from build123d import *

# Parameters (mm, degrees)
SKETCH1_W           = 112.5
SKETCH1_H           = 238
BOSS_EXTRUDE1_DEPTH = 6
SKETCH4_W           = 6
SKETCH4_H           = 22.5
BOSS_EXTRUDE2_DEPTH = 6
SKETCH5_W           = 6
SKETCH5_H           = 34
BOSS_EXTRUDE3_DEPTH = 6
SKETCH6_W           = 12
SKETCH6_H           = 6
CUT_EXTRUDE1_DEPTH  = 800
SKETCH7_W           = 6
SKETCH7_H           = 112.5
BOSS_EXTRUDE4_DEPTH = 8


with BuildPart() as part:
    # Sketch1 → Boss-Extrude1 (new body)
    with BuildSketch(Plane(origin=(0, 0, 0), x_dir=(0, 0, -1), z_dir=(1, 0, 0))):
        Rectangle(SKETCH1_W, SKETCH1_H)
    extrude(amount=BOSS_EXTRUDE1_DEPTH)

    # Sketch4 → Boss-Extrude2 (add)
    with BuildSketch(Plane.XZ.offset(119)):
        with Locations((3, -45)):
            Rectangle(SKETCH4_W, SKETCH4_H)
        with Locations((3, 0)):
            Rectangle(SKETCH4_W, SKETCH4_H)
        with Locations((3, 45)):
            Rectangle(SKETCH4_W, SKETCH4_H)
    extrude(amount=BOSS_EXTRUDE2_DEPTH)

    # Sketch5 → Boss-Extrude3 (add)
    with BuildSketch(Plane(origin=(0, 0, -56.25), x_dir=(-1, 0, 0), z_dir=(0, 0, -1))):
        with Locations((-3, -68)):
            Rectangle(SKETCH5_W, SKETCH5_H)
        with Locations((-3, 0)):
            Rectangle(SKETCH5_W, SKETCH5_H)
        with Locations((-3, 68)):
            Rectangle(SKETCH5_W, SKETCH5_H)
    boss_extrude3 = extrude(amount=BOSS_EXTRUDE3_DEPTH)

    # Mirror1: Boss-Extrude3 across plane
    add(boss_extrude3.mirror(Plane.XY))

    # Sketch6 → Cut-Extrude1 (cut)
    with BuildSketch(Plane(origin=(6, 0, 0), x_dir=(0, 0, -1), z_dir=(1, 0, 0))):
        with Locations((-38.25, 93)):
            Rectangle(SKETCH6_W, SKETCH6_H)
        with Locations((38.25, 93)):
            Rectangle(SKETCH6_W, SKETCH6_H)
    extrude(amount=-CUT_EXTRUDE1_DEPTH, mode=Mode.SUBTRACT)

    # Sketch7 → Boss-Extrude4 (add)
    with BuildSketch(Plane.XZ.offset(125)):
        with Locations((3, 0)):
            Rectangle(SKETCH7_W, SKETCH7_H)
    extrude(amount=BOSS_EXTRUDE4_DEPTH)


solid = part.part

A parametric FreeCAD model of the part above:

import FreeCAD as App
import Part
import Sketcher
Q = App.Units.Quantity


def add_polygon(sketch, points):
    """Adds a closed chain of lines whose ends are joined by coincident constraints."""
    first, n = sketch.GeometryCount, len(points)
    for a, b in zip(points, points[1:] + points[:1]):
        sketch.addGeometry(Part.LineSegment(App.Vector(*a, 0), App.Vector(*b, 0)), False)
    for i in range(n):
        sketch.addConstraint(Sketcher.Constraint("Coincident", first + i, 2, first + (i + 1) % n, 1))

doc = App.newDocument("Part")
body = doc.addObject("PartDesign::Body", "Body")

# Sketch on YZ plane
sketch1 = body.newObject("Sketcher::SketchObject", "Sketch")
sketch1.AttachmentSupport = (doc.getObject("YZ_Plane"), [""])
sketch1.MapMode = "FlatFace"
add_polygon(sketch1, [(119, 56), (-119, 56), (-119, -56), (119, -56)])  # lines 0-3
sketch1.addConstraint([
    Sketcher.Constraint("Horizontal", 0),
    Sketcher.Constraint("Vertical", 1),
    Sketcher.Constraint("Horizontal", 2),
    Sketcher.Constraint("Vertical", 3),
    Sketcher.Constraint("Symmetric", 0, 2, 2, 2, -1, 1),
    Sketcher.Constraint("DistanceX", 0, 2, 0, 1, Q("238 mm")),
    Sketcher.Constraint("DistanceY", 1, 2, 1, 1, Q("112.5 mm")),
])
pad1 = body.newObject("PartDesign::Pad", "Pad")
pad1.Profile = sketch1
pad1.Length = 6

# Sketch on XZ plane
sketch2 = body.newObject("Sketcher::SketchObject", "Sketch001")
sketch2.AttachmentSupport = (doc.getObject("XZ_Plane"), [""])
sketch2.MapMode = "FlatFace"
sketch2.AttachmentOffset = App.Placement(App.Vector(0, 0, 119), App.Rotation())
add_polygon(sketch2, [(0, -34), (0, -56), (6, -56), (6, -34)])  # lines 0-3
add_polygon(sketch2, [(0, 11), (0, -11), (6, -11), (6, 11)])  # lines 4-7
add_polygon(sketch2, [(0, 56), (0, 34), (6, 34), (6, 56)])  # lines 8-11
sketch2.addConstraint([
    Sketcher.Constraint("Vertical", 0),
    Sketcher.Constraint("Horizontal", 1),
    Sketcher.Constraint("Vertical", 2),
    Sketcher.Constraint("Horizontal", 3),
    Sketcher.Constraint("Vertical", 4),
    Sketcher.Constraint("Horizontal", 5),
    Sketcher.Constraint("Vertical", 6),
    Sketcher.Constraint("Horizontal", 7),
    Sketcher.Constraint("Vertical", 8),
    Sketcher.Constraint("Horizontal", 9),
    Sketcher.Constraint("Vertical", 10),
    Sketcher.Constraint("Horizontal", 11),
    Sketcher.Constraint("Symmetric", 4, 2, 7, 2, -1, 1),
    Sketcher.Constraint("Symmetric", 3, 2, 8, 2, -1, 1),
    Sketcher.Constraint("Symmetric", 1, 2, 10, 2, -1),
    Sketcher.Constraint("PointOnObject", 0, 2, -2),
    Sketcher.Constraint("Vertical", 2, 2, 5, 2),
    Sketcher.Constraint("Equal", 2, 4),
    Sketcher.Constraint("DistanceX", 1, 1, 1, 2, Q("6 mm")),
    Sketcher.Constraint("DistanceY", 0, 2, 0, 1, Q("22.5 mm")),
    Sketcher.Constraint("DistanceY", 0, 2, 4, 2, Q("45 mm")),
])
pad2 = body.newObject("PartDesign::Pad", "Pad001")
pad2.Profile = sketch2
pad2.Length = 6

# Sketch on XY plane
sketch3 = body.newObject("Sketcher::SketchObject", "Sketch002")
sketch3.AttachmentSupport = (doc.getObject("XY_Plane"), [""])
sketch3.MapMode = "FlatFace"
sketch3.AttachmentOffset = App.Placement(App.Vector(0, 0, -56.25), App.Rotation())
add_polygon(sketch3, [(6, -51), (6, -85), (0, -85), (0, -51)])  # lines 0-3
add_polygon(sketch3, [(6, 17), (6, -17), (0, -17), (0, 17)])  # lines 4-7
add_polygon(sketch3, [(6, 85), (6, 51), (0, 51), (0, 85)])  # lines 8-11
sketch3.addConstraint([
    Sketcher.Constraint("Vertical", 0),
    Sketcher.Constraint("Horizontal", 1),
    Sketcher.Constraint("Vertical", 2),
    Sketcher.Constraint("Horizontal", 3),
    Sketcher.Constraint("Vertical", 4),
    Sketcher.Constraint("Horizontal", 5),
    Sketcher.Constraint("Vertical", 6),
    Sketcher.Constraint("Horizontal", 7),
    Sketcher.Constraint("Vertical", 8),
    Sketcher.Constraint("Horizontal", 9),
    Sketcher.Constraint("Vertical", 10),
    Sketcher.Constraint("Horizontal", 11),
    Sketcher.Constraint("Symmetric", 5, 2, 6, 2, -1, 1),
    Sketcher.Constraint("Symmetric", 2, 2, 9, 2, -1, 1),
    Sketcher.Constraint("Symmetric", 1, 2, 10, 2, -1),
    Sketcher.Constraint("Vertical", 3, 2, 4, 2),
    Sketcher.Constraint("Vertical", 7, 2, 8, 2),
    Sketcher.Constraint("Equal", 2, 4),
    Sketcher.Constraint("DistanceX", 1, 2, 1, 1, Q("6 mm")),
    Sketcher.Constraint("DistanceY", 0, 2, 0, 1, Q("34 mm")),
    Sketcher.Constraint("DistanceY", 0, 2, -1, 1, Q("85 mm")),
])
pad3 = body.newObject("PartDesign::Pad", "Pad002")
pad3.Profile = sketch3
pad3.Length = 6
pad3.Reversed = True
doc.recompute()

mirrored = body.newObject("PartDesign::Mirrored", "Mirrored")
mirrored.Originals = [pad3]
mirrored.MirrorPlane = (doc.getObject("XY_Plane"), [""])
body.Tip = mirrored

# Sketch on YZ plane
sketch4 = body.newObject("Sketcher::SketchObject", "Sketch003")
sketch4.AttachmentSupport = (doc.getObject("YZ_Plane"), [""])
sketch4.MapMode = "FlatFace"
sketch4.AttachmentOffset = App.Placement(App.Vector(0, 0, 6), App.Rotation())
add_polygon(sketch4, [(96, 44), (90, 44), (90, 32), (96, 32)])  # lines 0-3
add_polygon(sketch4, [(96, -32), (90, -32), (90, -44), (96, -44)])  # lines 4-7
sketch4.addConstraint([
    Sketcher.Constraint("Horizontal", 0),
    Sketcher.Constraint("Vertical", 1),
    Sketcher.Constraint("Horizontal", 2),
    Sketcher.Constraint("Vertical", 3),
    Sketcher.Constraint("Horizontal", 4),
    Sketcher.Constraint("Vertical", 5),
    Sketcher.Constraint("Horizontal", 6),
    Sketcher.Constraint("Vertical", 7),
    Sketcher.Constraint("Symmetric", 1, 2, 4, 2, -1),
    Sketcher.Constraint("Symmetric", 3, 2, 6, 2, -1),
    Sketcher.Constraint("DistanceX", 0, 2, 0, 1, Q("6 mm")),
    Sketcher.Constraint("DistanceY", 1, 2, 1, 1, Q("12 mm")),
    Sketcher.Constraint("DistanceX", -1, 1, 0, 2, Q("90 mm")),
    Sketcher.Constraint("DistanceY", 4, 2, 1, 2, Q("64.5 mm")),
])
pocket1 = body.newObject("PartDesign::Pocket", "Pocket")
pocket1.Profile = sketch4
pocket1.Length = 800

# Sketch on XZ plane
sketch5 = body.newObject("Sketcher::SketchObject", "Sketch004")
sketch5.AttachmentSupport = (doc.getObject("XZ_Plane"), [""])
sketch5.MapMode = "FlatFace"
sketch5.AttachmentOffset = App.Placement(App.Vector(0, 0, 125), App.Rotation())
add_polygon(sketch5, [(0, 56), (0, -56), (6, -56), (6, 56)])  # lines 0-3
sketch5.addConstraint([
    Sketcher.Constraint("Vertical", 0),
    Sketcher.Constraint("Horizontal", 1),
    Sketcher.Constraint("Vertical", 2),
    Sketcher.Constraint("Horizontal", 3),
    Sketcher.Constraint("Symmetric", 0, 2, 3, 2, -1, 1),
    Sketcher.Constraint("DistanceX", 1, 1, 1, 2, Q("6 mm")),
    Sketcher.Constraint("DistanceY", 0, 2, 0, 1, Q("112.5 mm")),
])
pad4 = body.newObject("PartDesign::Pad", "Pad003")
pad4.Profile = sketch5
pad4.Length = 8

doc.recompute()
